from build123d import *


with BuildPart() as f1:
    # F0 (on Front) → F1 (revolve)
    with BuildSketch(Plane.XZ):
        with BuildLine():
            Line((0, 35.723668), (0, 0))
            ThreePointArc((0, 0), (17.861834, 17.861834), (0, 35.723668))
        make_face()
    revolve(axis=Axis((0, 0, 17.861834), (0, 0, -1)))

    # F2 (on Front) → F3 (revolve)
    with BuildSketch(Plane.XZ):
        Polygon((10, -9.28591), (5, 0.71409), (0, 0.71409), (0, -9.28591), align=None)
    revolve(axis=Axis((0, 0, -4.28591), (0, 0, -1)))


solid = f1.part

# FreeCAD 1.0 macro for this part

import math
import FreeCAD as App
import Part
import Sketcher
Q = App.Units.Quantity

doc = App.newDocument("Part")
body = doc.addObject("PartDesign::Body", "Body")

# Sketch on XZ plane
sketch1 = body.newObject("Sketcher::SketchObject", "Sketch")
sketch1.AttachmentSupport = (doc.getObject("XZ_Plane"), [""])
sketch1.MapMode = "FlatFace"
sketch1.addGeometry([
    Part.LineSegment(App.Vector(0, 36, 0), App.Vector(0, 0, 0)),
    Part.ArcOfCircle(Part.Circle(App.Vector(0, 18, 0), App.Vector(0, 0, 1), 18), math.radians(-90), math.radians(90)),
], False)
sketch1.addConstraint([
    Sketcher.Constraint("Coincident", 0, 1, 1, 2),
    Sketcher.Constraint("Coincident", 1, 1, 0, 2),
    Sketcher.Constraint("Vertical", 0),
    Sketcher.Constraint("Coincident", 1, 1, -1, 1),
    Sketcher.Constraint("PointOnObject", 1, 3, -2),
    Sketcher.Constraint("Radius", 1, Q("17.861834 mm")),
])
revolution = body.newObject("PartDesign::Revolution", "Revolution")
revolution.Profile = sketch1
revolution.ReferenceAxis = (sketch1, ["V_Axis"])
revolution.Angle = 360

# Sketch on XZ plane
sketch2 = body.newObject("Sketcher::SketchObject", "Sketch001")
sketch2.AttachmentSupport = (doc.getObject("XZ_Plane"), [""])
sketch2.MapMode = "FlatFace"
sketch2.addGeometry([
    Part.LineSegment(App.Vector(10, -9, 0), App.Vector(5, 1, 0)),
    Part.LineSegment(App.Vector(5, 1, 0), App.Vector(0, 1, 0)),
    Part.LineSegment(App.Vector(0, 1, 0), App.Vector(0, -9, 0)),
    Part.LineSegment(App.Vector(0, -9, 0), App.Vector(10, -9, 0)),
], False)
sketch2.addConstraint([
    Sketcher.Constraint("Coincident", 0, 2, 1, 1),
    Sketcher.Constraint("Coincident", 1, 2, 2, 1),
    Sketcher.Constraint("Coincident", 2, 2, 3, 1),
    Sketcher.Constraint("Coincident", 3, 2, 0, 1),
    Sketcher.Constraint("Horizontal", 1),
    Sketcher.Constraint("Vertical", 2),
    Sketcher.Constraint("Horizontal", 3),
    Sketcher.Constraint("PointOnObject", 1, 2, -2),
    Sketcher.Constraint("Equal", 3, 2),
    Sketcher.Constraint("DistanceX", 1, 2, 1, 1, Q("5 mm")),
    Sketcher.Constraint("DistanceX", 3, 1, 3, 2, Q("10 mm")),
    Sketcher.Constraint("DistanceY", -1, 1, 0, 2, Q("0.71409 mm")),
])
revolution2 = body.newObject("PartDesign::Revolution", "Revolution001")
revolution2.Profile = sketch2
revolution2.ReferenceAxis = (sketch2, ["V_Axis"])
revolution2.Angle = 360

doc.recompute()
